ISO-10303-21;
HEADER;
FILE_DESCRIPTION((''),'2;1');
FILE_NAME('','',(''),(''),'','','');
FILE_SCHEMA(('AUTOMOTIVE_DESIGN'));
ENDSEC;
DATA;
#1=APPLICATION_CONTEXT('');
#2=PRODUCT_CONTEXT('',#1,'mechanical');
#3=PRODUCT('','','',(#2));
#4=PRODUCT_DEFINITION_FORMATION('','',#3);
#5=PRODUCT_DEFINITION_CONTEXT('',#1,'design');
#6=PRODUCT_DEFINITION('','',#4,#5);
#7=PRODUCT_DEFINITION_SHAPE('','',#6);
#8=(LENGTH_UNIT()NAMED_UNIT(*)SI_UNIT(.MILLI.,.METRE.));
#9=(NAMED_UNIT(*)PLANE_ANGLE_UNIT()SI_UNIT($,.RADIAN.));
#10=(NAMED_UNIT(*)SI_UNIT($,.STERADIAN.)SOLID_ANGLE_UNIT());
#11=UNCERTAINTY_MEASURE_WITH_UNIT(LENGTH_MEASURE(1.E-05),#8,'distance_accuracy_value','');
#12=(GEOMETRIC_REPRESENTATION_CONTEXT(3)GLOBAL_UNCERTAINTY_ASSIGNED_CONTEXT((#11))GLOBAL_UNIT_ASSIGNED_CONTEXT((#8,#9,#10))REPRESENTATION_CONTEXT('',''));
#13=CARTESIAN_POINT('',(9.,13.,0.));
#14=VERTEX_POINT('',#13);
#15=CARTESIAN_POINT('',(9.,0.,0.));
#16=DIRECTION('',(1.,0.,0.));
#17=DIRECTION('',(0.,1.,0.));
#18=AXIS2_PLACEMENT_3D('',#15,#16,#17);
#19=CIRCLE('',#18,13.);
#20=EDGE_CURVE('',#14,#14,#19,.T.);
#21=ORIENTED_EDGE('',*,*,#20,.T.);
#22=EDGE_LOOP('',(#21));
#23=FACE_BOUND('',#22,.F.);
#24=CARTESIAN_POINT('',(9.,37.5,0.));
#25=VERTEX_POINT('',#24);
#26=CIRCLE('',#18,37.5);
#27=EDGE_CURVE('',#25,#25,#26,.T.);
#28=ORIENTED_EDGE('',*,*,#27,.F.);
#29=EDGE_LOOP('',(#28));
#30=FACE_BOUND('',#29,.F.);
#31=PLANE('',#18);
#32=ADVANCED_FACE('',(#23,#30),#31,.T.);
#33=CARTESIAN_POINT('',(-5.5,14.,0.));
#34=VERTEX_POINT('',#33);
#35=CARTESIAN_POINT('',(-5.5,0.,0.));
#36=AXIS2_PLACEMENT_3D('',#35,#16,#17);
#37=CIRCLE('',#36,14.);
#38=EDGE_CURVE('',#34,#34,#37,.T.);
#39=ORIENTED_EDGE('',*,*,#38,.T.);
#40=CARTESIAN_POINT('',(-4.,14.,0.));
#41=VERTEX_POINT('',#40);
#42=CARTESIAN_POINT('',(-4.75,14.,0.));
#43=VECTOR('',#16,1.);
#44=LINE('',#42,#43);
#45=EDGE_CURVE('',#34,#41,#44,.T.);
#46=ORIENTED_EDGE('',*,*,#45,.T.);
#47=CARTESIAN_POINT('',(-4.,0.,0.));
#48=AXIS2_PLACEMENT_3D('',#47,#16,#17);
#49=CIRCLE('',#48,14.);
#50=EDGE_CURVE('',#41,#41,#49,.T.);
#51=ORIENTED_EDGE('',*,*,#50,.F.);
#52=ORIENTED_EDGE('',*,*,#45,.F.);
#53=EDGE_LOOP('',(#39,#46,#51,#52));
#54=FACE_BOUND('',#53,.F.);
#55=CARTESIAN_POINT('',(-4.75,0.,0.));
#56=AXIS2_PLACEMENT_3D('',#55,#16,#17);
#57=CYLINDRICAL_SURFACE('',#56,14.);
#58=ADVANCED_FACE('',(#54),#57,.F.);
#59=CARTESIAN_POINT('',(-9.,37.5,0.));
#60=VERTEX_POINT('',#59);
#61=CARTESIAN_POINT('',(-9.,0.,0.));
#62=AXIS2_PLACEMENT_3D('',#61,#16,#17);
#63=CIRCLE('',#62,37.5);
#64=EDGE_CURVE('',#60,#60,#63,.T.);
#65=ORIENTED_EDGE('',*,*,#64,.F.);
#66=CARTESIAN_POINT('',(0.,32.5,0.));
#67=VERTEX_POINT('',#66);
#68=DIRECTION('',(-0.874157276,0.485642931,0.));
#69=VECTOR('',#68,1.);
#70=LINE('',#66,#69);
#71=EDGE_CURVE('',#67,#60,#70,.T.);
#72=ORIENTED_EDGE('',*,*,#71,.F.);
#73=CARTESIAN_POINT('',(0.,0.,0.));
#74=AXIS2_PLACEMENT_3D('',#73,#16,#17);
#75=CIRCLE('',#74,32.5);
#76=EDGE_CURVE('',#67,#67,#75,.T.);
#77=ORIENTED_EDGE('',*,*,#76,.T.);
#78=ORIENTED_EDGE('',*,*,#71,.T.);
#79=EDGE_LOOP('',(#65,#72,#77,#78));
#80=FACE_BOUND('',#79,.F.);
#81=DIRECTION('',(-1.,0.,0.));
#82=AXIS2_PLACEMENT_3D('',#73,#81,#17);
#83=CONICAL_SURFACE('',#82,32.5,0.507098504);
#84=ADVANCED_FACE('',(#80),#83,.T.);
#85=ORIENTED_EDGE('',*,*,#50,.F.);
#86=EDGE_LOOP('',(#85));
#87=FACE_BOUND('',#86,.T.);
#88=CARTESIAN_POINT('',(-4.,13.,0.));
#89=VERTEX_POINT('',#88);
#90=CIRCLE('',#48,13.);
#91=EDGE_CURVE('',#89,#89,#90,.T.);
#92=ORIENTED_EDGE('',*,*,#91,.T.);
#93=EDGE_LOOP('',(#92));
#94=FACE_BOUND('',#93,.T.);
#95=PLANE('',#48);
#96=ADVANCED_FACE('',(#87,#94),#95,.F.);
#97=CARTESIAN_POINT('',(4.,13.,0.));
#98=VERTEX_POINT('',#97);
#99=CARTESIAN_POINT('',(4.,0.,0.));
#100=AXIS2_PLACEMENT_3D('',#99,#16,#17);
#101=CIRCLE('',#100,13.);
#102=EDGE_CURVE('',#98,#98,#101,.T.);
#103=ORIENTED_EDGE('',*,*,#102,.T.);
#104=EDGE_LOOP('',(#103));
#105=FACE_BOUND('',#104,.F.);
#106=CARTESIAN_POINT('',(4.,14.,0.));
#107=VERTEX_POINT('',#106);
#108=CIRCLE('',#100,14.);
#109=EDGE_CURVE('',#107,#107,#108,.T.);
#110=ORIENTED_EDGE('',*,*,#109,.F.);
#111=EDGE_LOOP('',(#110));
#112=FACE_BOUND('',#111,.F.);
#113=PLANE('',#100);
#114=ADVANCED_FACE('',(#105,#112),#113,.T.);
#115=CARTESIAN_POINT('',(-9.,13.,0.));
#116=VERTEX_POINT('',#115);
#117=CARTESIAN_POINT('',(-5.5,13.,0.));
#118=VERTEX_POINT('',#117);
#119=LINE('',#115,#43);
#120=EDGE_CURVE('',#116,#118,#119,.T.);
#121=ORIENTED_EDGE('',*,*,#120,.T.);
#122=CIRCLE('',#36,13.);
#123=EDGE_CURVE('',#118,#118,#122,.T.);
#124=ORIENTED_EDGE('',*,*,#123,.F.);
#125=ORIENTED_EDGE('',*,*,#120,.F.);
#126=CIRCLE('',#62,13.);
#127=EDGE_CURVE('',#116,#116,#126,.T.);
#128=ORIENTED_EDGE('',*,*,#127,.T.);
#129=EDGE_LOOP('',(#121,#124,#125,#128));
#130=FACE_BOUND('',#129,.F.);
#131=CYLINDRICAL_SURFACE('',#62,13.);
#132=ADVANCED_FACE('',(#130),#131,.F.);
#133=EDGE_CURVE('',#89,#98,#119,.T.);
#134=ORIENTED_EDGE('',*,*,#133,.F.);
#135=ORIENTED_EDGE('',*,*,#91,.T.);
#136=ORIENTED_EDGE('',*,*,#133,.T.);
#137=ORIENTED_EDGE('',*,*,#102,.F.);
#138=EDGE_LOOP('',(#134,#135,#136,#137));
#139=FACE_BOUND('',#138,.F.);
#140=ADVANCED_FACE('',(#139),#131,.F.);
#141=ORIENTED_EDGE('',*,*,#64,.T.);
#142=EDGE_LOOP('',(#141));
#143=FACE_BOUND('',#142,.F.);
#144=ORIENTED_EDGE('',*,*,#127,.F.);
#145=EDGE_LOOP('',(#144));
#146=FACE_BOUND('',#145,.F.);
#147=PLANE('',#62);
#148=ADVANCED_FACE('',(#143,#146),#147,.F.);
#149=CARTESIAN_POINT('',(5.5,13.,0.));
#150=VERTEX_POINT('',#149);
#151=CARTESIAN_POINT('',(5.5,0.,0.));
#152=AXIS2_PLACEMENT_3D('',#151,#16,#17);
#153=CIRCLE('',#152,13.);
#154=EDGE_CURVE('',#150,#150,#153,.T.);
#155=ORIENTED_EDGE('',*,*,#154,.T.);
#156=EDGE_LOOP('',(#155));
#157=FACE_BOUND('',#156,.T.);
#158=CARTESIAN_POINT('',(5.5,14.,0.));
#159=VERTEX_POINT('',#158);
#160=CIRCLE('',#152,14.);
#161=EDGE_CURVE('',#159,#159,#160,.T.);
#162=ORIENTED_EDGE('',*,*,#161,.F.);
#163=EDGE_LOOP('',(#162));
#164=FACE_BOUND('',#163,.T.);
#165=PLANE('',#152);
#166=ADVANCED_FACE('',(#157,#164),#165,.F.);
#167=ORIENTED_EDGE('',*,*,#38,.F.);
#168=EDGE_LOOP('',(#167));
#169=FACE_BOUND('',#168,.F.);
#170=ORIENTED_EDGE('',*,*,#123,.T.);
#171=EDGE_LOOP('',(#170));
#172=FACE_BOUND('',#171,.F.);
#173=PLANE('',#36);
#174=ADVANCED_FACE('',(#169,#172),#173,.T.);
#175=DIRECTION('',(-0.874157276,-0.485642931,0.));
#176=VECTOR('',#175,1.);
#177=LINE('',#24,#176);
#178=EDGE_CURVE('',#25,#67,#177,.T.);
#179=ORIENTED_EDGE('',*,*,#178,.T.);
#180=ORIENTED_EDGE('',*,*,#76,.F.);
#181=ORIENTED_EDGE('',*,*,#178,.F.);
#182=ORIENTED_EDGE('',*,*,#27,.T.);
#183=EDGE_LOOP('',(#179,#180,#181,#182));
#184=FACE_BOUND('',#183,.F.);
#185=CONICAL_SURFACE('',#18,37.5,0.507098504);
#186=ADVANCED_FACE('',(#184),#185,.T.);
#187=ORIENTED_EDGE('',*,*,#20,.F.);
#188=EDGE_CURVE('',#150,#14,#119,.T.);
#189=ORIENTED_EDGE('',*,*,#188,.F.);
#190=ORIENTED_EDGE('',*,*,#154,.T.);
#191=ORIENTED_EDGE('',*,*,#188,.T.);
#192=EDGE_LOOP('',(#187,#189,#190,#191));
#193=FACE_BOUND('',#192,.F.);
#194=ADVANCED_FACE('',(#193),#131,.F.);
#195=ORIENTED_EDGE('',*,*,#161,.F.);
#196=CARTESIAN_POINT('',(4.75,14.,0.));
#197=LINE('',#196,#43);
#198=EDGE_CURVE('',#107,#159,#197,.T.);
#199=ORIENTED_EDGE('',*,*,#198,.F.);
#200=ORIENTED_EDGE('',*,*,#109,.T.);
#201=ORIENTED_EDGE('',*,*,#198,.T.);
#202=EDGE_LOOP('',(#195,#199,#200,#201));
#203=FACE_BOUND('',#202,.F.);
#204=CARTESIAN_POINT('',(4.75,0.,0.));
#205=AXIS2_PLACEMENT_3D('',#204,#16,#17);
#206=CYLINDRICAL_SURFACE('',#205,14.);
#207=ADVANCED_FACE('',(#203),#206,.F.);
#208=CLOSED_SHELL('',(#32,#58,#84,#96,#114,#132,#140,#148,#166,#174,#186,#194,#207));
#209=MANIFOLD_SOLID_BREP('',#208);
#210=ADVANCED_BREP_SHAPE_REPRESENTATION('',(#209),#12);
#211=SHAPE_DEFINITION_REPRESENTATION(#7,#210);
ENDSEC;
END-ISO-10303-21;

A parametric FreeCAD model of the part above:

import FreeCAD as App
import Part
import Sketcher


def add_polygon(sketch, points):
    """Adds a closed chain of lines whose ends are joined by coincident constraints."""
    first, n = sketch.GeometryCount, len(points)
    for a, b in zip(points, points[1:] + points[:1]):
        sketch.addGeometry(Part.LineSegment(App.Vector(*a, 0), App.Vector(*b, 0)), False)
    for i in range(n):
        sketch.addConstraint(Sketcher.Constraint("Coincident", first + i, 2, first + (i + 1) % n, 1))

doc = App.newDocument("Part")
body = doc.addObject("PartDesign::Body", "Body")

# Sketch on XY plane
sketch1 = doc.addObject("Sketcher::SketchObject", "Sketch")
body.addObject(sketch1)
sketch1.AttachmentSupport = (doc.XY_Plane, [""])
sketch1.MapMode = "FlatFace"
add_polygon(sketch1, [(-9, 38), (-9, 13), (9, 13), (9, 38), (0, 32)])  # lines 0-4
sketch1.addConstraint([
    Sketcher.Constraint("Vertical", 0),
    Sketcher.Constraint("Horizontal", 1),
    Sketcher.Constraint("Vertical", 2),
    Sketcher.Constraint("Symmetric", 2, 2, 4, 2, -2),
    Sketcher.Constraint("PointOnObject", 3, 2, -2),
    Sketcher.Constraint("DistanceX", 1, 1, 1, 2, 18.0),
    Sketcher.Constraint("DistanceY", 0, 2, 0, 1, 24.5),
    Sketcher.Constraint("DistanceY", -1, 1, 0, 2, 13.0),
    Sketcher.Constraint("DistanceY", 3, 2, 2, 2, 5.0),
])
revolution = doc.addObject("PartDesign::Revolution", "Revolution")
body.addObject(revolution)
revolution.Profile = sketch1
revolution.ReferenceAxis = (sketch1, ["H_Axis"])
revolution.Angle = 360

# Sketch on XY plane
sketch2 = doc.addObject("Sketcher::SketchObject", "Sketch001")
body.addObject(sketch2)
sketch2.AttachmentSupport = (doc.XY_Plane, [""])
sketch2.MapMode = "FlatFace"
add_polygon(sketch2, [(-5.5, 14), (-5.5, 13), (-4, 13), (-4, 14)])  # lines 0-3
add_polygon(sketch2, [(4, 14), (4, 13), (5.5, 13), (5.5, 14)])  # lines 4-7
sketch2.addConstraint([
    Sketcher.Constraint("Vertical", 0),
    Sketcher.Constraint("Horizontal", 1),
    Sketcher.Constraint("Vertical", 2),
    Sketcher.Constraint("Horizontal", 3),
    Sketcher.Constraint("Vertical", 4),
    Sketcher.Constraint("Horizontal", 5),
    Sketcher.Constraint("Vertical", 6),
    Sketcher.Constraint("Horizontal", 7),
    Sketcher.Constraint("Symmetric", 1, 2, 4, 2, -2),
    Sketcher.Constraint("Symmetric", 3, 2, 6, 2, -2),
    Sketcher.Constraint("DistanceY", 0, 2, 0, 1, 1.0),
    Sketcher.Constraint("DistanceX", 1, 1, 1, 2, 1.5),
    Sketcher.Constraint("DistanceY", -1, 1, 0, 2, 13.0),
    Sketcher.Constraint("DistanceX", 1, 2, -1, 1, 4.0),
])
groove = doc.addObject("PartDesign::Groove", "Groove")
body.addObject(groove)
groove.Profile = sketch2
groove.ReferenceAxis = (sketch2, ["H_Axis"])
groove.Angle = 360

doc.recompute()
